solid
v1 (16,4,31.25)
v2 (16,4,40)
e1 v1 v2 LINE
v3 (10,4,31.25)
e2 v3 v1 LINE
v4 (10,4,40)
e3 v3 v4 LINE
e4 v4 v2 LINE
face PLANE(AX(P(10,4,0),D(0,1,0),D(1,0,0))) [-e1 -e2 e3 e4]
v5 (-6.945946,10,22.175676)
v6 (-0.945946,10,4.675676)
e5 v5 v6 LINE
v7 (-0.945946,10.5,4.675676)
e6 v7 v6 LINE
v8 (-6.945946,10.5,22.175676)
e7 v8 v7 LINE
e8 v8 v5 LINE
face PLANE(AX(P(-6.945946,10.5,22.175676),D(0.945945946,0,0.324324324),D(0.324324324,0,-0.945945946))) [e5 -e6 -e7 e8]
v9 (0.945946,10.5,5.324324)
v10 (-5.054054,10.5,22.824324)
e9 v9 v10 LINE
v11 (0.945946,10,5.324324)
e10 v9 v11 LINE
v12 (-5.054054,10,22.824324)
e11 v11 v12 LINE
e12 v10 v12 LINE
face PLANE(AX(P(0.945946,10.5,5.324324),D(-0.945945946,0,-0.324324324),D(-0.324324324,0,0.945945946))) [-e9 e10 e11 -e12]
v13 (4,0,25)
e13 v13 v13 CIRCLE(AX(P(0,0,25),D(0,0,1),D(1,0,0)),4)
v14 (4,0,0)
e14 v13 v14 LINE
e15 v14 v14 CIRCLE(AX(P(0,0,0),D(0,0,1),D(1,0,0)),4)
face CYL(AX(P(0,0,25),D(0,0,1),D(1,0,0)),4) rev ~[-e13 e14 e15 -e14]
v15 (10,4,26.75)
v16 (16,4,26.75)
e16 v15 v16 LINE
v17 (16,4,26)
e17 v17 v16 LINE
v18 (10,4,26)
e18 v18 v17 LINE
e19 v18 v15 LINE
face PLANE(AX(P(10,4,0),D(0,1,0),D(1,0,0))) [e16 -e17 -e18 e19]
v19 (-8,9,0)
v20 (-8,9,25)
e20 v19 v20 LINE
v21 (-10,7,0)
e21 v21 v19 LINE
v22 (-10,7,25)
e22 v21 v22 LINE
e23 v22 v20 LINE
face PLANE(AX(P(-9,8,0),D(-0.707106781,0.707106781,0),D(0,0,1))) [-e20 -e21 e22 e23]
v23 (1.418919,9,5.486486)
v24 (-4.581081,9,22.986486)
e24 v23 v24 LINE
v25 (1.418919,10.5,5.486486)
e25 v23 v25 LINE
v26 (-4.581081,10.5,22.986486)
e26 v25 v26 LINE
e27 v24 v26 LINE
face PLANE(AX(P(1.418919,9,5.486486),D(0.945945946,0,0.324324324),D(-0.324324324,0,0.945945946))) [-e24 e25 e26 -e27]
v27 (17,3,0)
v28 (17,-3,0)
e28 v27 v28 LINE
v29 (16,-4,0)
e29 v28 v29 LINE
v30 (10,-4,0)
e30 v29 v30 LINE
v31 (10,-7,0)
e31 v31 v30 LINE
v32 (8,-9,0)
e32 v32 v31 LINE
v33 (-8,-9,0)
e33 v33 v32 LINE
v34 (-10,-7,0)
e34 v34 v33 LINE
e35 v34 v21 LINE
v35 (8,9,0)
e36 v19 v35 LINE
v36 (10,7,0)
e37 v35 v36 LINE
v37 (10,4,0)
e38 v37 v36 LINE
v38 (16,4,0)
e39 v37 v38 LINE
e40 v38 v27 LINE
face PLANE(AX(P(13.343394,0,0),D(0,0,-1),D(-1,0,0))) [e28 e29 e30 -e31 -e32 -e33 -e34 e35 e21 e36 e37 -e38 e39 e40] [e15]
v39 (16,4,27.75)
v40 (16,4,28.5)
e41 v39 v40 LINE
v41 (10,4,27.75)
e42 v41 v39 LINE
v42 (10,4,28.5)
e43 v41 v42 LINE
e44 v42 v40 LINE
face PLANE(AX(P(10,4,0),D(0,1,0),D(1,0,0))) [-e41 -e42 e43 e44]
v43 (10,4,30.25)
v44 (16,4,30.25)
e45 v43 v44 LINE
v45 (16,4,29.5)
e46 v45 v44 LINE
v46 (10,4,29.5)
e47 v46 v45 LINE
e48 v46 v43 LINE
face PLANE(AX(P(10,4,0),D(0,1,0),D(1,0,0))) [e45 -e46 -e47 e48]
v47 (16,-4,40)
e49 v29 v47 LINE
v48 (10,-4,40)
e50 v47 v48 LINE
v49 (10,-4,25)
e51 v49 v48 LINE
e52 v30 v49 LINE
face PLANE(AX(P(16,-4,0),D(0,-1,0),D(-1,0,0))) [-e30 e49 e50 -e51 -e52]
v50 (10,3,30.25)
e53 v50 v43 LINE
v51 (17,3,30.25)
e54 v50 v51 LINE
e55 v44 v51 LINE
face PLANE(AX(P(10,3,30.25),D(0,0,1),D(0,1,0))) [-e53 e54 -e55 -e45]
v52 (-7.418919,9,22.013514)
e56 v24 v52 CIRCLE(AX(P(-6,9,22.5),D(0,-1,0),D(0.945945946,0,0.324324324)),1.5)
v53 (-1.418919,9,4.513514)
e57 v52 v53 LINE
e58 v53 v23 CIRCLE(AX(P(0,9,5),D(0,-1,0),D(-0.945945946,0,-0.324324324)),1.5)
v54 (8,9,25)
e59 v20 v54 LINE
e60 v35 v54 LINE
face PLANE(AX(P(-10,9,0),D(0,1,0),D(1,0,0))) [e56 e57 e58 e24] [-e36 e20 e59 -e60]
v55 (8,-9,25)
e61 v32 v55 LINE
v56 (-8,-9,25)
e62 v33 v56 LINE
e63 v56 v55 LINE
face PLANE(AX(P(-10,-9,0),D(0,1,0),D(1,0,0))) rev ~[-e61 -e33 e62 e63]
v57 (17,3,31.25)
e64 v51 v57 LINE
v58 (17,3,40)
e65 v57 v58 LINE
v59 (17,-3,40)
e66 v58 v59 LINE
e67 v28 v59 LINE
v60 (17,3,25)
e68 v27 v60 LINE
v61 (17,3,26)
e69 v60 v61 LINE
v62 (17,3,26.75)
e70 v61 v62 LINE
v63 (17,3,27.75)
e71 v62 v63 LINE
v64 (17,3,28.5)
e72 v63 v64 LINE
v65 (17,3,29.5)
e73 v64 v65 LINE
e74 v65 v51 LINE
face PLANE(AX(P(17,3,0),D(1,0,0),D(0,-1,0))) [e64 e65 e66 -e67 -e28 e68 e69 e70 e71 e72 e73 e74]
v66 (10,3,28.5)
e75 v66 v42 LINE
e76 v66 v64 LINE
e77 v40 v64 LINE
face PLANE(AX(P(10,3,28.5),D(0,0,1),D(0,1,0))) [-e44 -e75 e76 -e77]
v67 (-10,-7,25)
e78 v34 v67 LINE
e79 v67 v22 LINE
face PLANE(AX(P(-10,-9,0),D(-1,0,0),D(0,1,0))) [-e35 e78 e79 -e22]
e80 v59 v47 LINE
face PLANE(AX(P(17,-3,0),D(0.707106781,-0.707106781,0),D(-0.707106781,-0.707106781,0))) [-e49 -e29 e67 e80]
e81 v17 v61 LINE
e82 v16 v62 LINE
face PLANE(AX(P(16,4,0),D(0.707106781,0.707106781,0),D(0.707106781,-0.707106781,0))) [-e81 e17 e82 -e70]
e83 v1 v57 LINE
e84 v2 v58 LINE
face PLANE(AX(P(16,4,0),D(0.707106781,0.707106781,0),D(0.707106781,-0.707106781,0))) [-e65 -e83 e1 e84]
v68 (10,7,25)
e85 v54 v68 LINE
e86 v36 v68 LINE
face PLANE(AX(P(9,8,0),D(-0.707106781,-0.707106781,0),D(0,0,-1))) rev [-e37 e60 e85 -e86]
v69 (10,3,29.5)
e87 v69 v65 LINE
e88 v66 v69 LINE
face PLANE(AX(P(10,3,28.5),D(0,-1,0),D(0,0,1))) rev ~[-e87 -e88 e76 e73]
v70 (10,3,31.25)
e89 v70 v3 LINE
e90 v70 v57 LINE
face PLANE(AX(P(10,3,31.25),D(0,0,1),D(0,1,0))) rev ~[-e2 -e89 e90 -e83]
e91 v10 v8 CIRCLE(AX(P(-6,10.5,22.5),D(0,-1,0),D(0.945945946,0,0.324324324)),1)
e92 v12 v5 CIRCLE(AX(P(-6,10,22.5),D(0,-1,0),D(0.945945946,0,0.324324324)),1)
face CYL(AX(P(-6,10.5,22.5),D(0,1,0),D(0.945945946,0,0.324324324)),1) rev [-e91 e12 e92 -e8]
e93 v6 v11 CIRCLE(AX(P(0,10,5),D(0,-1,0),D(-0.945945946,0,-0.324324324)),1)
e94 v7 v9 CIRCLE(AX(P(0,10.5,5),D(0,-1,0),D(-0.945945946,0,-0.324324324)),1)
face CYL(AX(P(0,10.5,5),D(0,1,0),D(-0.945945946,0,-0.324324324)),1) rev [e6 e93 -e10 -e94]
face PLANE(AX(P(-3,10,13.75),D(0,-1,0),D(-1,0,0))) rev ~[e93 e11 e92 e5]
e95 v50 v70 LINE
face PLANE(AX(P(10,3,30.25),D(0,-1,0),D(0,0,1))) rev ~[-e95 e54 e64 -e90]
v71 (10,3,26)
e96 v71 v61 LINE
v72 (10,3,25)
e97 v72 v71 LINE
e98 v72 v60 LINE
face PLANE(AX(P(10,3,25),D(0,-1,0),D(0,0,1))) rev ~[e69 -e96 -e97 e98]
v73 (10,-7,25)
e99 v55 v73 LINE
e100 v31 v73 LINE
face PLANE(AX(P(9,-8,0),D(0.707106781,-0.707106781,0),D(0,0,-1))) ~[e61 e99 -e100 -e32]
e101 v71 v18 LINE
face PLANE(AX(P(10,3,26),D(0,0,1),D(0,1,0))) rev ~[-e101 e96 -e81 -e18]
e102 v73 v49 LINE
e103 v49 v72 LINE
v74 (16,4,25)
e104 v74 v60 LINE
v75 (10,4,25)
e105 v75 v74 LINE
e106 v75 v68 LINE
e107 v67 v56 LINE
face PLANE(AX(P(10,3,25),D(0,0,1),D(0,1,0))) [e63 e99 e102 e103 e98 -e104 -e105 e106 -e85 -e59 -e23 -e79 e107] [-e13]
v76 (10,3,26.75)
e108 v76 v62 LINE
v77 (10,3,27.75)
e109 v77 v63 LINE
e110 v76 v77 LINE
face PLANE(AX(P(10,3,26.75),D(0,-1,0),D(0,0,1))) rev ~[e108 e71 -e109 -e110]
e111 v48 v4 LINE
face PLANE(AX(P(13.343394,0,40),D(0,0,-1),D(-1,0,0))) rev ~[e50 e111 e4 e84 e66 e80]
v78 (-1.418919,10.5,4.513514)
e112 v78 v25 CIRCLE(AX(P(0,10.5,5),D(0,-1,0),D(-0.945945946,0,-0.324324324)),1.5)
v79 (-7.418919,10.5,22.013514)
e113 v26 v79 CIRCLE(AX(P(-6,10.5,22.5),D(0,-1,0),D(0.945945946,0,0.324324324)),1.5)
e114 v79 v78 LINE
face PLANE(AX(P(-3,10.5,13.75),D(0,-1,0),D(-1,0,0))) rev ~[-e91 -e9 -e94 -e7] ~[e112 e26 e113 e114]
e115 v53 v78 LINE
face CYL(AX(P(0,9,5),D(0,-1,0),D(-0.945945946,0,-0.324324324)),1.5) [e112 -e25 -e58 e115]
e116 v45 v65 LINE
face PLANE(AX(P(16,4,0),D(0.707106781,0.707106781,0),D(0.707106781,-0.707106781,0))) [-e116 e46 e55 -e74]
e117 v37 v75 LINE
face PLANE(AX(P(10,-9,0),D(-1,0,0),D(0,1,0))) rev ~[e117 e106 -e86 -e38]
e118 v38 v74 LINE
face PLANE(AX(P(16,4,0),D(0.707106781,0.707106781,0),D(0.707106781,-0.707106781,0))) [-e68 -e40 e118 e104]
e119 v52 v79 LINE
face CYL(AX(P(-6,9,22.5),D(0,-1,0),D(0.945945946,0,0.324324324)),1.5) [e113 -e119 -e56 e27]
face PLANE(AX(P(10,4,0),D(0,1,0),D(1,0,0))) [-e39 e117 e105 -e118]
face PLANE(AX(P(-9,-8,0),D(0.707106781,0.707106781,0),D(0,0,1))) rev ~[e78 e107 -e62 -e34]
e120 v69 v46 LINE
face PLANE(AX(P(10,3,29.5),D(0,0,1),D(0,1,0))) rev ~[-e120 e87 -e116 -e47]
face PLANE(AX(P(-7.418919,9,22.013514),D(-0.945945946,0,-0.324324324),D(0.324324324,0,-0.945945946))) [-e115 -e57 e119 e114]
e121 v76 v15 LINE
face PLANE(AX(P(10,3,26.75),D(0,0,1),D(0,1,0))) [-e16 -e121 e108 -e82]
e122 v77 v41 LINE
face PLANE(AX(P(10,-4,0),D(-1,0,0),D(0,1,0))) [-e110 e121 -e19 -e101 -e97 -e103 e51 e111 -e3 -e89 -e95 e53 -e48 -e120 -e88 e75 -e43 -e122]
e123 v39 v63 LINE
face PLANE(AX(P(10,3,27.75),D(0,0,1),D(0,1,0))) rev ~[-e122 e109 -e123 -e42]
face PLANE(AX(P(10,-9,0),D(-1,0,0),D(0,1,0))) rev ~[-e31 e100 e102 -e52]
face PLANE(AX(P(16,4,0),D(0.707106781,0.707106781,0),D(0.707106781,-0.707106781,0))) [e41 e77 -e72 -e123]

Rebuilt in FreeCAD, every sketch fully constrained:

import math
import FreeCAD as App
import Part
import Sketcher
Q = App.Units.Quantity


def edges_at(feature, points):
    """Names of the edges that pass closest to the given points."""
    edges = feature.Shape.Edges
    near = lambda p: min(range(len(edges)), key=lambda i: edges[i].distToShape(Part.Vertex(*p))[0])
    return sorted({f"Edge{near(p) + 1}" for p in points})

doc = App.newDocument("Part")
params = doc.addObject("Spreadsheet::Sheet", "Params")
for row, (alias, value) in enumerate([
    ("sketch1_width", "20 mm"),
    ("sketch1_height", "18 mm"),
    ("pad1_length", "25 mm"),
    ("sketch2_diameter", "8 mm"),
    ("chamfer_size", "2 mm"),
    ("sketch3_radius", "1.5 mm"),
    ("sketch3_length", "18.5 mm"),
    ("pad2_length", "1.5 mm"),
    ("sketch4_radius", "1 mm"),
    ("sketch4_length", "18.5 mm"),
    ("pocket2_length", "0.5 mm"),
    ("sketch5_width", "6 mm"),
    ("sketch5_height", "8 mm"),
    ("pad3_length", "40 mm"),
    ("sketch6_width", "1 mm"),
], start=1):
    params.set(f"A{row}", alias)
    params.set(f"B{row}", "=" + value)
    params.setAlias(f"B{row}", alias)

body = doc.addObject("PartDesign::Body", "Body")

# Sketch on XY plane
sketch1 = body.newObject("Sketcher::SketchObject", "Sketch")
sketch1.AttachmentSupport = (doc.getObject("XY_Plane"), [""])
sketch1.MapMode = "FlatFace"
sketch1.addGeometry([
    Part.LineSegment(App.Vector(-10, 9, 0), App.Vector(-10, -9, 0)),
    Part.LineSegment(App.Vector(-10, -9, 0), App.Vector(10, -9, 0)),
    Part.LineSegment(App.Vector(10, -9, 0), App.Vector(10, 9, 0)),
    Part.LineSegment(App.Vector(10, 9, 0), App.Vector(-10, 9, 0)),
], False)
sketch1.addConstraint([
    Sketcher.Constraint("Coincident", 0, 2, 1, 1),
    Sketcher.Constraint("Coincident", 1, 2, 2, 1),
    Sketcher.Constraint("Coincident", 2, 2, 3, 1),
    Sketcher.Constraint("Coincident", 3, 2, 0, 1),
    Sketcher.Constraint("Vertical", 0),
    Sketcher.Constraint("Horizontal", 1),
    Sketcher.Constraint("Vertical", 2),
    Sketcher.Constraint("Horizontal", 3),
    Sketcher.Constraint("Symmetric", 0, 2, 2, 2, -1, 1),
    Sketcher.Constraint("DistanceX", 1, 1, 1, 2, Q("20 mm")),
    Sketcher.Constraint("DistanceY", 0, 2, 0, 1, Q("18 mm")),
])
sketch1.setExpression("Constraints[9]", "Params.sketch1_width")
sketch1.setExpression("Constraints[10]", "Params.sketch1_height")
pad1 = body.newObject("PartDesign::Pad", "Pad")
pad1.Profile = sketch1
pad1.setExpression("Length", "Params.pad1_length")

# Sketch on XY plane
sketch2 = body.newObject("Sketcher::SketchObject", "Sketch001")
sketch2.AttachmentSupport = (doc.getObject("XY_Plane"), [""])
sketch2.MapMode = "FlatFace"
sketch2.AttachmentOffset = App.Placement(App.Vector(0, 0, 25), App.Rotation())
sketch2.addGeometry(Part.Circle(App.Vector(0, 0, 0), App.Vector(0, 0, 1), 4), False)
sketch2.addConstraint([
    Sketcher.Constraint("Coincident", 0, 3, -1, 1),
    Sketcher.Constraint("Diameter", 0, Q("8 mm")),
])
sketch2.setExpression("Constraints[1]", "Params.sketch2_diameter")
pocket1 = body.newObject("PartDesign::Pocket", "Pocket")
pocket1.Profile = sketch2
pocket1.Type = "ThroughAll"
doc.recompute()

chamfer = body.newObject("PartDesign::Chamfer", "Chamfer")
chamfer.Base = (pocket1, edges_at(pocket1, [
    (10, 9, 12.5),
    (10, -9, 12.5),
    (-10, -9, 12.5),
    (-10, 9, 12.5),
]))
chamfer.setExpression("Size", "Params.chamfer_size")

# Sketch on XZ plane
sketch3 = body.newObject("Sketcher::SketchObject", "Sketch002")
sketch3.AttachmentSupport = (doc.getObject("XZ_Plane"), [""])
sketch3.MapMode = "FlatFace"
sketch3.AttachmentOffset = App.Placement(App.Vector(0, 0, -9), App.Rotation())
sketch3.addGeometry([
    Part.LineSegment(App.Vector(-1.418919, 4.513514, 0), App.Vector(-7.418919, 22.013514, 0)),
    Part.ArcOfCircle(Part.Circle(App.Vector(-6, 22.5, 0), App.Vector(0, 0, 1), 1.5), math.radians(18.924644), math.radians(198.924644)),
    Part.LineSegment(App.Vector(-4.581081, 22.986486, 0), App.Vector(1.418919, 5.486486, 0)),
    Part.ArcOfCircle(Part.Circle(App.Vector(0, 5, 0), App.Vector(0, 0, 1), 1.5), math.radians(-161.075356), math.radians(18.924644)),
], False)
sketch3.addConstraint([
    Sketcher.Constraint("Tangent", 0, 2, 1, 2),
    Sketcher.Constraint("Tangent", 1, 1, 2, 1),
    Sketcher.Constraint("Tangent", 2, 2, 3, 2),
    Sketcher.Constraint("Tangent", 3, 1, 0, 1),
    Sketcher.Constraint("Equal", 1, 3),
    Sketcher.Constraint("PointOnObject", 3, 3, -2),
    Sketcher.Constraint("Radius", 1, Q("1.5 mm")),
    Sketcher.Constraint("DistanceX", 1, 3, -1, 1, Q("6 mm")),
    Sketcher.Constraint("DistanceY", -1, 1, 3, 3, Q("5 mm")),
    Sketcher.Constraint("Distance", 0, Q("18.5 mm")),
])
sketch3.setExpression("Constraints[6]", "Params.sketch3_radius")
sketch3.setExpression("Constraints[9]", "Params.sketch3_length")
pad2 = body.newObject("PartDesign::Pad", "Pad001")
pad2.Profile = sketch3
pad2.setExpression("Length", "Params.pad2_length")
pad2.Reversed = True

# Sketch on XZ plane
sketch4 = body.newObject("Sketcher::SketchObject", "Sketch003")
sketch4.AttachmentSupport = (doc.getObject("XZ_Plane"), [""])
sketch4.MapMode = "FlatFace"
sketch4.AttachmentOffset = App.Placement(App.Vector(0, 0, -10.5), App.Rotation())
sketch4.addGeometry([
    Part.LineSegment(App.Vector(-0.945946, 4.675676, 0), App.Vector(-6.945946, 22.175676, 0)),
    Part.ArcOfCircle(Part.Circle(App.Vector(-6, 22.5, 0), App.Vector(0, 0, 1), 1), math.radians(18.924644), math.radians(198.924644)),
    Part.LineSegment(App.Vector(-5.054054, 22.824324, 0), App.Vector(0.945946, 5.324324, 0)),
    Part.ArcOfCircle(Part.Circle(App.Vector(0, 5, 0), App.Vector(0, 0, 1), 1), math.radians(-161.075356), math.radians(18.924644)),
], False)
sketch4.addConstraint([
    Sketcher.Constraint("Tangent", 0, 2, 1, 2),
    Sketcher.Constraint("Tangent", 1, 1, 2, 1),
    Sketcher.Constraint("Tangent", 2, 2, 3, 2),
    Sketcher.Constraint("Tangent", 3, 1, 0, 1),
    Sketcher.Constraint("Equal", 1, 3),
    Sketcher.Constraint("PointOnObject", 3, 3, -2),
    Sketcher.Constraint("Radius", 1, Q("1 mm")),
    Sketcher.Constraint("DistanceX", 1, 3, -1, 1, Q("6 mm")),
    Sketcher.Constraint("DistanceY", -1, 1, 3, 3, Q("5 mm")),
    Sketcher.Constraint("Distance", 0, Q("18.5 mm")),
])
sketch4.setExpression("Constraints[6]", "Params.sketch4_radius")
sketch4.setExpression("Constraints[9]", "Params.sketch4_length")
pocket2 = body.newObject("PartDesign::Pocket", "Pocket001")
pocket2.Profile = sketch4
pocket2.setExpression("Length", "Params.pocket2_length")
pocket2.Reversed = True

# Sketch on XY plane
sketch5 = body.newObject("Sketcher::SketchObject", "Sketch004")
sketch5.AttachmentSupport = (doc.getObject("XY_Plane"), [""])
sketch5.MapMode = "FlatFace"
sketch5.addGeometry([
    Part.LineSegment(App.Vector(10, 4, 0), App.Vector(16, 4, 0)),  # 0
    Part.LineSegment(App.Vector(16, 4, 0), App.Vector(17, 3, 0)),  # 1
    Part.LineSegment(App.Vector(17, 3, 0), App.Vector(17, -3, 0)),  # 2
    Part.LineSegment(App.Vector(17, -3, 0), App.Vector(16, -4, 0)),  # 3
    Part.LineSegment(App.Vector(16, -4, 0), App.Vector(10, -4, 0)),  # 4
    Part.LineSegment(App.Vector(10, -4, 0), App.Vector(10, 4, 0)),  # 5
], False)
sketch5.addConstraint([
    Sketcher.Constraint("Coincident", 0, 2, 1, 1),
    Sketcher.Constraint("Coincident", 1, 2, 2, 1),
    Sketcher.Constraint("Coincident", 2, 2, 3, 1),
    Sketcher.Constraint("Coincident", 3, 2, 4, 1),
    Sketcher.Constraint("Coincident", 4, 2, 5, 1),
    Sketcher.Constraint("Coincident", 5, 2, 0, 1),
    Sketcher.Constraint("Horizontal", 0),
    Sketcher.Constraint("Vertical", 2),
    Sketcher.Constraint("Horizontal", 4),
    Sketcher.Constraint("Vertical", 5),
    Sketcher.Constraint("Symmetric", 0, 2, 3, 2, -1),
    Sketcher.Constraint("Perpendicular", 1, 3),
    Sketcher.Constraint("Equal", 4, 2),
    Sketcher.Constraint("Equal", 1, 3),
    Sketcher.Constraint("DistanceX", 0, 1, 0, 2, Q("6 mm")),
    Sketcher.Constraint("DistanceY", 5, 1, 5, 2, Q("8 mm")),
    Sketcher.Constraint("DistanceX", -1, 1, 0, 2, Q("16 mm")),
])
sketch5.setExpression("Constraints[14]", "Params.sketch5_width")
sketch5.setExpression("Constraints[15]", "Params.sketch5_height")
pad3 = body.newObject("PartDesign::Pad", "Pad002")
pad3.Profile = sketch5
pad3.setExpression("Length", "Params.pad3_length")

# Sketch on YZ plane
sketch6 = body.newObject("Sketcher::SketchObject", "Sketch005")
sketch6.AttachmentSupport = (doc.getObject("YZ_Plane"), [""])
sketch6.MapMode = "FlatFace"
sketch6.AttachmentOffset = App.Placement(App.Vector(0, 0, 10), App.Rotation())
sketch6.addGeometry([
    Part.LineSegment(App.Vector(4, 25, 0), App.Vector(3, 25, 0)),  # 0
    Part.LineSegment(App.Vector(3, 25, 0), App.Vector(3, 26, 0)),  # 1
    Part.LineSegment(App.Vector(3, 26, 0), App.Vector(4, 26, 0)),  # 2
    Part.LineSegment(App.Vector(4, 26, 0), App.Vector(4, 25, 0)),  # 3
    Part.LineSegment(App.Vector(4, 26.75, 0), App.Vector(3, 26.75, 0)),  # 4
    Part.LineSegment(App.Vector(3, 26.75, 0), App.Vector(3, 27.75, 0)),  # 5
    Part.LineSegment(App.Vector(3, 27.75, 0), App.Vector(4, 27.75, 0)),  # 6
    Part.LineSegment(App.Vector(4, 27.75, 0), App.Vector(4, 26.75, 0)),  # 7
    Part.LineSegment(App.Vector(4, 28.5, 0), App.Vector(3, 28.5, 0)),  # 8
    Part.LineSegment(App.Vector(3, 28.5, 0), App.Vector(3, 29.5, 0)),  # 9
    Part.LineSegment(App.Vector(3, 29.5, 0), App.Vector(4, 29.5, 0)),  # 10
    Part.LineSegment(App.Vector(4, 29.5, 0), App.Vector(4, 28.5, 0)),  # 11
    Part.LineSegment(App.Vector(4, 30.25, 0), App.Vector(3, 30.25, 0)),  # 12
    Part.LineSegment(App.Vector(3, 30.25, 0), App.Vector(3, 31.25, 0)),  # 13
    Part.LineSegment(App.Vector(3, 31.25, 0), App.Vector(4, 31.25, 0)),  # 14
    Part.LineSegment(App.Vector(4, 31.25, 0), App.Vector(4, 30.25, 0)),  # 15
], False)
sketch6.addConstraint([
    Sketcher.Constraint("Coincident", 0, 2, 1, 1),
    Sketcher.Constraint("Coincident", 1, 2, 2, 1),
    Sketcher.Constraint("Coincident", 2, 2, 3, 1),
    Sketcher.Constraint("Coincident", 3, 2, 0, 1),
    Sketcher.Constraint("Coincident", 4, 2, 5, 1),
    Sketcher.Constraint("Coincident", 5, 2, 6, 1),
    Sketcher.Constraint("Coincident", 6, 2, 7, 1),
    Sketcher.Constraint("Coincident", 7, 2, 4, 1),
    Sketcher.Constraint("Coincident", 8, 2, 9, 1),
    Sketcher.Constraint("Coincident", 9, 2, 10, 1),
    Sketcher.Constraint("Coincident", 10, 2, 11, 1),
    Sketcher.Constraint("Coincident", 11, 2, 8, 1),
    Sketcher.Constraint("Coincident", 12, 2, 13, 1),
    Sketcher.Constraint("Coincident", 13, 2, 14, 1),
    Sketcher.Constraint("Coincident", 14, 2, 15, 1),
    Sketcher.Constraint("Coincident", 15, 2, 12, 1),
    Sketcher.Constraint("Horizontal", 0),
    Sketcher.Constraint("Vertical", 1),
    Sketcher.Constraint("Horizontal", 2),
    Sketcher.Constraint("Vertical", 3),
    Sketcher.Constraint("Horizontal", 4),
    Sketcher.Constraint("Vertical", 5),
    Sketcher.Constraint("Horizontal", 6),
    Sketcher.Constraint("Vertical", 7),
    Sketcher.Constraint("Horizontal", 8),
    Sketcher.Constraint("Vertical", 9),
    Sketcher.Constraint("Horizontal", 10),
    Sketcher.Constraint("Vertical", 11),
    Sketcher.Constraint("Horizontal", 12),
    Sketcher.Constraint("Vertical", 13),
    Sketcher.Constraint("Horizontal", 14),
    Sketcher.Constraint("Vertical", 15),
    Sketcher.Constraint("Vertical", 1, 2, 4, 2),
    Sketcher.Constraint("Vertical", 3, 2, 6, 2),
    Sketcher.Constraint("Vertical", 5, 2, 8, 2),
    Sketcher.Constraint("Vertical", 7, 2, 10, 2),
    Sketcher.Constraint("Vertical", 9, 2, 12, 2),
    Sketcher.Constraint("Vertical", 11, 2, 14, 2),
    Sketcher.Constraint("Equal", 14, 1),
    Sketcher.Constraint("Equal", 3, 5),
    Sketcher.Constraint("Equal", 7, 9),
    Sketcher.Constraint("Equal", 11, 13),
    Sketcher.Constraint("DistanceX", 0, 2, 0, 1, Q("1 mm")),
    Sketcher.Constraint("DistanceX", -1, 1, 0, 2, Q("3 mm")),
    Sketcher.Constraint("DistanceY", -1, 1, 0, 2, Q("25 mm")),
    Sketcher.Constraint("DistanceY", -1, 1, 8, 2, Q("28.5 mm")),
    Sketcher.Constraint("DistanceY", 5, 2, 12, 2, Q("2.5 mm")),
    Sketcher.Constraint("DistanceY", -1, 1, 4, 2, Q("26.75 mm")),
])
sketch6.setExpression("Constraints[42]", "Params.sketch6_width")
pocket3 = body.newObject("PartDesign::Pocket", "Pocket002")
pocket3.Profile = sketch6
pocket3.Type = "ThroughAll"
pocket3.Reversed = True

doc.recompute()
